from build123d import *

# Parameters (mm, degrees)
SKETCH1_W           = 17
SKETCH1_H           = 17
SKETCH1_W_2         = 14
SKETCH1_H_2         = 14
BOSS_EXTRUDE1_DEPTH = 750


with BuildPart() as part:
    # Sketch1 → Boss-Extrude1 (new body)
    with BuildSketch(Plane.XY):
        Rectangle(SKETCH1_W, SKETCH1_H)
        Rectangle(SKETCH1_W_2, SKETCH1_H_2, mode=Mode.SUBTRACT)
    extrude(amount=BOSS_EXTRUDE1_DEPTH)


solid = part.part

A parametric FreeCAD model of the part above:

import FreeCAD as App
import Part
import Sketcher
from FreeCAD import Vector


def add_polygon(sketch, points):
    """Adds a closed chain of lines whose ends are joined by coincident constraints."""
    first, n = sketch.GeometryCount, len(points)
    for a, b in zip(points, points[1:] + points[:1]):
        sketch.addGeometry(Part.LineSegment(App.Vector(*a, 0), App.Vector(*b, 0)), False)
    for i in range(n):
        sketch.addConstraint(Sketcher.Constraint("Coincident", first + i, 2, first + (i + 1) % n, 1))

doc = App.newDocument("Part")
body = doc.addObject("PartDesign::Body", "Body")

sketch1 = body.newObject("Sketcher::SketchObject", "Sketch")
sketch1.AttachmentSupport = (doc.getObject("XY_Plane"), [""])
sketch1.MapMode = "FlatFace"
add_polygon(sketch1, [(-8, 8), (-8, -8), (8, -8), (8, 8)])
add_polygon(sketch1, [(7, -7), (-7, -7), (-7, 7), (7, 7)])
sketch1.addConstraint([
    Sketcher.Constraint("Vertical", 0),
    Sketcher.Constraint("Horizontal", 1),
    Sketcher.Constraint("Vertical", 2),
    Sketcher.Constraint("Horizontal", 3),
    Sketcher.Constraint("Horizontal", 4),
    Sketcher.Constraint("Vertical", 5),
    Sketcher.Constraint("Horizontal", 6),
    Sketcher.Constraint("Vertical", 7),
    Sketcher.Constraint("Symmetric", 0, 2, 2, 2, -1, 1),
    Sketcher.Constraint("Symmetric", 4, 2, 6, 2, -1, 1),
    Sketcher.Constraint("Equal", 3, 0),
    Sketcher.Constraint("Equal", 6, 5),
    Sketcher.Constraint("DistanceX", 1, 1, 1, 2, 17.0),
    Sketcher.Constraint("DistanceX", 4, 2, 4, 1, 14.0),
])
pad1 = body.newObject("PartDesign::Pad", "Pad")
pad1.Profile = sketch1
pad1.Length = 750

doc.recompute()
